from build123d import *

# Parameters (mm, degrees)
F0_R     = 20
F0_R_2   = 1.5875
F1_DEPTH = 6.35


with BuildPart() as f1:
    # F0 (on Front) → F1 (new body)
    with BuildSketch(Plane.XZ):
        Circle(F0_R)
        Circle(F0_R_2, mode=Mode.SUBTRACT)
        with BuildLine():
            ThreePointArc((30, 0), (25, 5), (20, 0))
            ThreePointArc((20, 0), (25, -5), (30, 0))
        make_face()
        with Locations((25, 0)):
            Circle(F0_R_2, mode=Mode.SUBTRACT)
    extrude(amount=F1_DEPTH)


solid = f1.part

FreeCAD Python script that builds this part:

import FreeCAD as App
import Part
import Sketcher
from FreeCAD import Vector
Q = App.Units.Quantity

doc = App.newDocument("Part")
body = doc.addObject("PartDesign::Body", "Body")
body.AllowCompound = True

sketch1 = body.newObject("Sketcher::SketchObject", "Sketch")
sketch1.AttachmentSupport = (doc.getObject("XZ_Plane"), [""])
sketch1.MapMode = "FlatFace"
sketch1.addGeometry([
    Part.Circle(Vector(0, 0, 0), Vector(0, 0, 1), 20),
    Part.Circle(Vector(0, 0, 0), Vector(0, 0, 1), 1.6),
    Part.Circle(Vector(25, 0, 0), Vector(0, 0, 1), 5),
    Part.Circle(Vector(25, 0, 0), Vector(0, 0, 1), 1.6),
], False)
sketch1.addConstraint([
    Sketcher.Constraint("Coincident", 0, 3, -1, 1),
    Sketcher.Constraint("Coincident", 1, 3, -1, 1),
    Sketcher.Constraint("Coincident", 3, 3, 2, 3),
    Sketcher.Constraint("Equal", 1, 3),
    Sketcher.Constraint("PointOnObject", 2, 3, -1),
    Sketcher.Constraint("Diameter", 0, Q("40 mm")),
    Sketcher.Constraint("Diameter", 2, Q("10 mm")),
    Sketcher.Constraint("Diameter", 1, Q("3.175 mm")),
    Sketcher.Constraint("DistanceX", -1, 1, 2, 3, Q("25 mm")),
])
pad1 = body.newObject("PartDesign::Pad", "Pad")
pad1.Profile = sketch1
pad1.Length = 6.35

doc.recompute()
